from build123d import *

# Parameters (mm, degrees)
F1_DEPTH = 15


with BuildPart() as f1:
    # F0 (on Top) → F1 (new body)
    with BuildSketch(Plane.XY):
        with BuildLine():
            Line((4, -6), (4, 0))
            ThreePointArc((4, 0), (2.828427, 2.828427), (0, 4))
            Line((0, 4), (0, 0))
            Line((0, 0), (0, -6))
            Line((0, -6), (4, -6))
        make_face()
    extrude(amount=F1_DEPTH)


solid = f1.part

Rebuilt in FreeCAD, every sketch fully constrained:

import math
import FreeCAD as App
import Part
import Sketcher
from FreeCAD import Vector
Q = App.Units.Quantity

doc = App.newDocument("Part")
body = doc.addObject("PartDesign::Body", "Body")

# Sketch on XY plane
sketch1 = body.newObject("Sketcher::SketchObject", "Sketch")
sketch1.AttachmentSupport = (doc.getObject("XY_Plane"), [""])
sketch1.MapMode = "FlatFace"
sketch1.addGeometry([
    Part.LineSegment(Vector(4, -6, 0), Vector(4, 0, 0)),
    Part.ArcOfCircle(Part.Circle(Vector(0, 0, 0), Vector(0, 0, 1), 4), math.radians(0), math.radians(90)),
    Part.LineSegment(Vector(0, 4, 0), Vector(0, -6, 0)),
    Part.LineSegment(Vector(0, -6, 0), Vector(4, -6, 0)),
], False)
sketch1.addConstraint([
    Sketcher.Constraint("Tangent", 0, 2, 1, 1),
    Sketcher.Constraint("Coincident", 1, 2, 2, 1),
    Sketcher.Constraint("Coincident", 2, 2, 3, 1),
    Sketcher.Constraint("Coincident", 3, 2, 0, 1),
    Sketcher.Constraint("Vertical", 0),
    Sketcher.Constraint("Vertical", 2),
    Sketcher.Constraint("Horizontal", 3),
    Sketcher.Constraint("Coincident", 1, 3, -1, 1),
    Sketcher.Constraint("PointOnObject", 1, 2, -2),
    Sketcher.Constraint("Radius", 1, Q("4 mm")),
    Sketcher.Constraint("DistanceY", 0, 1, 0, 2, Q("6 mm")),
])
pad1 = body.newObject("PartDesign::Pad", "Pad")
pad1.Profile = sketch1
pad1.Length = 15

doc.recompute()
